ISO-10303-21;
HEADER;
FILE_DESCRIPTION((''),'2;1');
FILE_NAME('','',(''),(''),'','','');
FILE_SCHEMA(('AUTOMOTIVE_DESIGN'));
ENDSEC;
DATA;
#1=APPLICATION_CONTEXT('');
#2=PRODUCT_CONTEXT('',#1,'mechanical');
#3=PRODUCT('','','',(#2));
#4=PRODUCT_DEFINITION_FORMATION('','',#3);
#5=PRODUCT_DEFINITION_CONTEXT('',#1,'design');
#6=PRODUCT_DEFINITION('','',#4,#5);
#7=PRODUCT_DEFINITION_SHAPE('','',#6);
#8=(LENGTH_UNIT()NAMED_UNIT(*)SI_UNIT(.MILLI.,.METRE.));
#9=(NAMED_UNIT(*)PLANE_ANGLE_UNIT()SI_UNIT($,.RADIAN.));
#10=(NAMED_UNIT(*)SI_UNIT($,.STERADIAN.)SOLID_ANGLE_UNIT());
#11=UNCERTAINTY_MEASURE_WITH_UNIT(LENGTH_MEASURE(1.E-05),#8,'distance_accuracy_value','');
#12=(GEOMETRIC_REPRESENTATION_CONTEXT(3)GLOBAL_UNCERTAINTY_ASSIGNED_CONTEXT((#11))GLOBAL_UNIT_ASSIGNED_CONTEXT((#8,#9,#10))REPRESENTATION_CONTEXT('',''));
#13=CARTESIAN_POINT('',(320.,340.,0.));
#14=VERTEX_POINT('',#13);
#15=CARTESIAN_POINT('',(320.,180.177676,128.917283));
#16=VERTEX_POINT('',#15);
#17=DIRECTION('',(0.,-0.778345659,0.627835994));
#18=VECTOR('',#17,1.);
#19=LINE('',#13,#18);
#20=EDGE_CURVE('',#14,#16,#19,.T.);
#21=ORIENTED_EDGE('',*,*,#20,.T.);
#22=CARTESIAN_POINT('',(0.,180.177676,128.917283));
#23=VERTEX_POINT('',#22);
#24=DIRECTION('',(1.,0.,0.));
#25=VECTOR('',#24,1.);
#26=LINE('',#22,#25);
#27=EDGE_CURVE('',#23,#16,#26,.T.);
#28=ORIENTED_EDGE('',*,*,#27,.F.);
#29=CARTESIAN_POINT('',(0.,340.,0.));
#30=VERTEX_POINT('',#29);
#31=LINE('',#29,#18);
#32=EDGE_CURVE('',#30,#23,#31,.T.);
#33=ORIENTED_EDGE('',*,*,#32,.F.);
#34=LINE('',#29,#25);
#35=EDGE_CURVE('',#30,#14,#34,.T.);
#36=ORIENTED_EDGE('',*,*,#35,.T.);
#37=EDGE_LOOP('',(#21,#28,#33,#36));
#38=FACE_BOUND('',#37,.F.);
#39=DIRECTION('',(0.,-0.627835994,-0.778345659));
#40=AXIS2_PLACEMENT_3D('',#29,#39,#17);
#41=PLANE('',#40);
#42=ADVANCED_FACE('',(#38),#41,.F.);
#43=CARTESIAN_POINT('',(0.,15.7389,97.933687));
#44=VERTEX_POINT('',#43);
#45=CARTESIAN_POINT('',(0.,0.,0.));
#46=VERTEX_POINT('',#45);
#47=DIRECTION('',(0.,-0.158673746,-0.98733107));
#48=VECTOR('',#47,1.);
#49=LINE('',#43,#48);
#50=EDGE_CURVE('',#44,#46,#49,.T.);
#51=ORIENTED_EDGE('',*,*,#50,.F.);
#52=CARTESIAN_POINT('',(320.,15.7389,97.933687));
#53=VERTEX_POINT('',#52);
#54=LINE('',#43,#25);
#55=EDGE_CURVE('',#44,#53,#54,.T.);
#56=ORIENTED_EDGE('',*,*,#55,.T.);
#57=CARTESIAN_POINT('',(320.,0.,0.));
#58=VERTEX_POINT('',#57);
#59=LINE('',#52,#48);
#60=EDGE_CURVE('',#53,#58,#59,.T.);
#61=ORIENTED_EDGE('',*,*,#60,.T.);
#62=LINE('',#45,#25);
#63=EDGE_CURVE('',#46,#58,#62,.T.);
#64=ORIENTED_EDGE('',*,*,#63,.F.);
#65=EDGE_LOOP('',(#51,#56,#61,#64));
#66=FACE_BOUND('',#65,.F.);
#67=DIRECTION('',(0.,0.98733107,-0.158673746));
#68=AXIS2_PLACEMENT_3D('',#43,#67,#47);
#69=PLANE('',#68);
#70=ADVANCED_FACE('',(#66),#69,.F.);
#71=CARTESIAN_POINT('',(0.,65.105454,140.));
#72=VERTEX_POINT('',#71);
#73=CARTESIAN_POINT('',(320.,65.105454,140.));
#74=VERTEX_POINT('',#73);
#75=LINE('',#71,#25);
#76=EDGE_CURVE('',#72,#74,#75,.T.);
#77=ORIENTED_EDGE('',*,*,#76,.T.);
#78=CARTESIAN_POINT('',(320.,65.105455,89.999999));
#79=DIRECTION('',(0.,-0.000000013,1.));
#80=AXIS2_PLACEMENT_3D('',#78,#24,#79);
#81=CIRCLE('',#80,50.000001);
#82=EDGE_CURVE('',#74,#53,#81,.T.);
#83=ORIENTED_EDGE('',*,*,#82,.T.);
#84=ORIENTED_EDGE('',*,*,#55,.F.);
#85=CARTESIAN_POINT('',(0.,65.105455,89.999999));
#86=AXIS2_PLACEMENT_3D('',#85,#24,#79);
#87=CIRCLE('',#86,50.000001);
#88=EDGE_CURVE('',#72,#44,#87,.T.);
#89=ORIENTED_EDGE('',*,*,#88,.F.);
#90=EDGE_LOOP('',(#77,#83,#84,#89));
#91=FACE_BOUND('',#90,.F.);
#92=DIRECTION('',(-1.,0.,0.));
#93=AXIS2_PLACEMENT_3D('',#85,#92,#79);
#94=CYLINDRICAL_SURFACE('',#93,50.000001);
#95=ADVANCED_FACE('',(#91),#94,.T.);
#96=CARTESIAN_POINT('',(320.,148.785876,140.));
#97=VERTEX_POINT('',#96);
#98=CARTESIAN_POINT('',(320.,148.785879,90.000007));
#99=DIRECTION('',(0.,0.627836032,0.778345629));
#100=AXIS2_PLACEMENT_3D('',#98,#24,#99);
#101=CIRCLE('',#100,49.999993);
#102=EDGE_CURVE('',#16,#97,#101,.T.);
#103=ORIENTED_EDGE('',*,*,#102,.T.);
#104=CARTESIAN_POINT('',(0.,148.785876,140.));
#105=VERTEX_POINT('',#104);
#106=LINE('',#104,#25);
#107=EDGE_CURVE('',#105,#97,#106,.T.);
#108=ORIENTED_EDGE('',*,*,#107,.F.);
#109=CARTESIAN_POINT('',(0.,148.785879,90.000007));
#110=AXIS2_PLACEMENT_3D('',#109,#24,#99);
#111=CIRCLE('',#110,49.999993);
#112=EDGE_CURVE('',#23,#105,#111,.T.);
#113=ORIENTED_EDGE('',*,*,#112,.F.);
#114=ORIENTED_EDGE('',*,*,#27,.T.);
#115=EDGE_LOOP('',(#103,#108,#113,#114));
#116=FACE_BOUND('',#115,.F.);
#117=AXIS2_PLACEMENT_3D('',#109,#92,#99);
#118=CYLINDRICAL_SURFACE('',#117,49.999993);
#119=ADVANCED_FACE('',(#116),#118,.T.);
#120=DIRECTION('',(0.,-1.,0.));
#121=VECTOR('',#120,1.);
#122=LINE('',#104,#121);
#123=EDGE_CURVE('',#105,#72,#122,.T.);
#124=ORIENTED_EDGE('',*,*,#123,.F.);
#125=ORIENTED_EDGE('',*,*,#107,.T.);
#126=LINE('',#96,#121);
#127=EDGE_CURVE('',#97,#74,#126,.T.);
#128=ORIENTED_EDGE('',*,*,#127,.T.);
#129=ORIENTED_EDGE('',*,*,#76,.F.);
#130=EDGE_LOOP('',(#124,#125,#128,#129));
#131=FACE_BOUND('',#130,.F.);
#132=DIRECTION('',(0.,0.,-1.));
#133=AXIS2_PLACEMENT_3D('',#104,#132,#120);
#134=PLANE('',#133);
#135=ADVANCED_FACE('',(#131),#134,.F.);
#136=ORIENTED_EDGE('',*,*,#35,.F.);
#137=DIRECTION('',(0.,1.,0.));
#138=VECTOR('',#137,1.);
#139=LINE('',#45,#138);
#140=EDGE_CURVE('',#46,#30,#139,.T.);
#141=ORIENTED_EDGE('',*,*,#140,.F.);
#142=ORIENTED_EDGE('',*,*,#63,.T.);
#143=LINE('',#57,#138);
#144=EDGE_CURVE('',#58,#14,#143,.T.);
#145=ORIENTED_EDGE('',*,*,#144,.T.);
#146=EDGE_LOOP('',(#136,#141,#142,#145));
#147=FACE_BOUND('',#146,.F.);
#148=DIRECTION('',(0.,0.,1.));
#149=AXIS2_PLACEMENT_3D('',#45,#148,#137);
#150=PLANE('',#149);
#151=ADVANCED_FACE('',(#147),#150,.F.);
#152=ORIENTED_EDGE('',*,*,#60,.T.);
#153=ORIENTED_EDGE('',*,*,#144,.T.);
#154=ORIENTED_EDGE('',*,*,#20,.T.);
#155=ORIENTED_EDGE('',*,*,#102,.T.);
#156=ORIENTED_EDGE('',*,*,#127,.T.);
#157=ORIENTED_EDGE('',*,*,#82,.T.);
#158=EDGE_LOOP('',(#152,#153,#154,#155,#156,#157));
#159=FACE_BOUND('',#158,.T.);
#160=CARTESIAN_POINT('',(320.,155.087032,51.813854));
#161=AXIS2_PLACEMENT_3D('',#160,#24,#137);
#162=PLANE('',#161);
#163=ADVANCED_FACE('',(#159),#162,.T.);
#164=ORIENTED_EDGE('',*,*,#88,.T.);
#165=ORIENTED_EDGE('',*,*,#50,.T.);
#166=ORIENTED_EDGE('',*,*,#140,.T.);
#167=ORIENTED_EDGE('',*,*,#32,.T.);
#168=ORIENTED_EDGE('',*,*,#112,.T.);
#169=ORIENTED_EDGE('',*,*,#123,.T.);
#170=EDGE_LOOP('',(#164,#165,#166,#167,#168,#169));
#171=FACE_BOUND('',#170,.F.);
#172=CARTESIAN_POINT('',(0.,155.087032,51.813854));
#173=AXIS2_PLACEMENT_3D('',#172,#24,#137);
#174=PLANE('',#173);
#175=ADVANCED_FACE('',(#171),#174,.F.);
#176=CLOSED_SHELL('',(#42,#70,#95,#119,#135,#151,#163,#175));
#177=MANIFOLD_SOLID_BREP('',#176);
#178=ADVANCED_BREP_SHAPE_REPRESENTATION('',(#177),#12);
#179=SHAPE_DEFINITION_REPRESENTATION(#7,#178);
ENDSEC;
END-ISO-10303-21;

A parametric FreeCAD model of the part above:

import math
import FreeCAD as App
import Part
import Sketcher

V = App.Vector
Q = App.Units.Quantity

doc = App.newDocument("Part")
body = doc.addObject("PartDesign::Body", "Body")

# Sketch on YZ plane
sketch1 = body.newObject("Sketcher::SketchObject", "Sketch")
sketch1.AttachmentSupport = (doc.getObject("YZ_Plane"), [""])
sketch1.MapMode = "FlatFace"
sketch1.addGeometry(Part.LineSegment(V(16, 98, 0), V(0, 0, 0)), False)
sketch1.addGeometry(Part.LineSegment(V(0, 0, 0), V(340, 0, 0)), False)
sketch1.addGeometry(Part.LineSegment(V(340, 0, 0), V(180, 129, 0)), False)
sketch1.addGeometry(Part.ArcOfCircle(Part.Circle(V(149, 90, 0), V(0, 0, 1), 50), math.radians(51), math.radians(90)), False)
sketch1.addGeometry(Part.LineSegment(V(149, 140, 0), V(65, 140, 0)), False)
sketch1.addGeometry(Part.ArcOfCircle(Part.Circle(V(65, 90, 0), V(0, 0, 1), 50), math.radians(90), math.radians(171)), False)
sketch1.addConstraint(Sketcher.Constraint("Coincident", 0, 2, 1, 1))
sketch1.addConstraint(Sketcher.Constraint("Coincident", 1, 2, 2, 1))
sketch1.addConstraint(Sketcher.Constraint("Tangent", 2, 2, 3, 1))
sketch1.addConstraint(Sketcher.Constraint("Tangent", 3, 2, 4, 1))
sketch1.addConstraint(Sketcher.Constraint("Tangent", 4, 2, 5, 1))
sketch1.addConstraint(Sketcher.Constraint("Tangent", 5, 2, 0, 1))
sketch1.addConstraint(Sketcher.Constraint("Horizontal", 1))
sketch1.addConstraint(Sketcher.Constraint("Horizontal", 4))
sketch1.addConstraint(Sketcher.Constraint("Coincident", 0, 2, -1, 1))
sketch1.addConstraint(Sketcher.Constraint("Radius", 5, Q("50.000001 mm")))
sketch1.addConstraint(Sketcher.Constraint("DistanceX", 1, 1, 1, 2, Q("340 mm")))
sketch1.addConstraint(Sketcher.Constraint("DistanceY", -1, 1, 5, 3, Q("89.999999 mm")))
sketch1.addConstraint(Sketcher.Constraint("Radius", 3, Q("49.999993 mm")))
sketch1.addConstraint(Sketcher.Constraint("DistanceX", -1, 1, 5, 2, Q("15.7389 mm")))
sketch1.addConstraint(Sketcher.Constraint("DistanceX", 4, 2, 4, 1, Q("83.680422 mm")))
pad1 = body.newObject("PartDesign::Pad", "Pad")
pad1.Profile = sketch1
pad1.Length = 320

doc.recompute()
